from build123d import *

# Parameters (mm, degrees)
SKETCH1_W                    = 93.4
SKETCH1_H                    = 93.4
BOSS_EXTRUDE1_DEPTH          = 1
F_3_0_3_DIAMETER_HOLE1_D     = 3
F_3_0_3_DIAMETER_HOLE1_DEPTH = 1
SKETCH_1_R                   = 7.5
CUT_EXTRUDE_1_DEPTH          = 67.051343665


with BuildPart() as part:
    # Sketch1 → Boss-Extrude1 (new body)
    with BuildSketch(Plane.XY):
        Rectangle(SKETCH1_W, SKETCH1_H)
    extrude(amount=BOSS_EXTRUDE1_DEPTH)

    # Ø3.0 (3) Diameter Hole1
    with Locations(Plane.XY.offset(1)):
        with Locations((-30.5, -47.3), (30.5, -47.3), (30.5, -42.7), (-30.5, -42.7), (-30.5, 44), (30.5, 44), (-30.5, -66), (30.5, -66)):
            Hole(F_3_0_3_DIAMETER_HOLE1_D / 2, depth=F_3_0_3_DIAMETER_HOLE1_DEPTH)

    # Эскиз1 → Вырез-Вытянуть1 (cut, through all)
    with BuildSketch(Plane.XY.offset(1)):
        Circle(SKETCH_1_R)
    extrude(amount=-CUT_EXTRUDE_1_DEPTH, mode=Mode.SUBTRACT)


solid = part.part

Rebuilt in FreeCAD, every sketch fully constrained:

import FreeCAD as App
import Part
import Sketcher

doc = App.newDocument("Part")
params = doc.addObject("Spreadsheet::Sheet", "Params")
for row, (alias, value) in enumerate([
    ("sketch1_width", "93.4 mm"),
    ("pad1_length", "1 mm"),
    ("sketch2_diameter", "3 mm"),
    ("hole_diameter", "3 mm"),
    ("hole_depth", "1 mm"),
    ("sketch3_diameter", "15 mm"),
], start=1):
    params.set(f"A{row}", alias)
    params.set(f"B{row}", "=" + value)
    params.setAlias(f"B{row}", alias)

body = doc.addObject("PartDesign::Body", "Body")

sketch1 = body.newObject("Sketcher::SketchObject", "Sketch")
sketch1.AttachmentSupport = (doc.getObject("XY_Plane"), [""])
sketch1.MapMode = "FlatFace"
sketch1.addGeometry([
    Part.LineSegment(App.Vector(-47, 47, 0), App.Vector(-47, -47, 0)),
    Part.LineSegment(App.Vector(-47, -47, 0), App.Vector(47, -47, 0)),
    Part.LineSegment(App.Vector(47, -47, 0), App.Vector(47, 47, 0)),
    Part.LineSegment(App.Vector(47, 47, 0), App.Vector(-47, 47, 0)),
], False)
sketch1.addConstraint([
    Sketcher.Constraint("Coincident", 0, 2, 1, 1),
    Sketcher.Constraint("Coincident", 1, 2, 2, 1),
    Sketcher.Constraint("Coincident", 2, 2, 3, 1),
    Sketcher.Constraint("Coincident", 3, 2, 0, 1),
    Sketcher.Constraint("Vertical", 0),
    Sketcher.Constraint("Horizontal", 1),
    Sketcher.Constraint("Vertical", 2),
    Sketcher.Constraint("Horizontal", 3),
    Sketcher.Constraint("Symmetric", 0, 2, 2, 2, -1, 1),
    Sketcher.Constraint("Equal", 3, 0),
    Sketcher.Constraint("DistanceX", 1, 1, 1, 2, 93.4),
])
sketch1.setExpression("Constraints[10]", "Params.sketch1_width")
pad1 = body.newObject("PartDesign::Pad", "Pad")
pad1.Profile = sketch1
pad1.setExpression("Length", "Params.pad1_length")

sketch2 = body.newObject("Sketcher::SketchObject", "Sketch001")
sketch2.AttachmentSupport = (doc.getObject("XY_Plane"), [""])
sketch2.MapMode = "FlatFace"
sketch2.AttachmentOffset = App.Placement(App.Vector(0, 0, 1), App.Rotation())
sketch2.addGeometry([
    Part.Circle(App.Vector(-30.5, -47.3, 0), App.Vector(0, 0, 1), 1.5),
    Part.Circle(App.Vector(30.5, -47.3, 0), App.Vector(0, 0, 1), 1.5),
    Part.Circle(App.Vector(30.5, -42.7, 0), App.Vector(0, 0, 1), 1.5),
    Part.Circle(App.Vector(-30.5, -42.7, 0), App.Vector(0, 0, 1), 1.5),
    Part.Circle(App.Vector(-30.5, 44, 0), App.Vector(0, 0, 1), 1.5),
    Part.Circle(App.Vector(30.5, 44, 0), App.Vector(0, 0, 1), 1.5),
    Part.Circle(App.Vector(-30.5, -66, 0), App.Vector(0, 0, 1), 1.5),
    Part.Circle(App.Vector(30.5, -66, 0), App.Vector(0, 0, 1), 1.5),
], False)
sketch2.addConstraint([
    Sketcher.Constraint("Equal", 0, 1),
    Sketcher.Constraint("Equal", 1, 2),
    Sketcher.Constraint("Equal", 2, 3),
    Sketcher.Constraint("Equal", 3, 4),
    Sketcher.Constraint("Equal", 4, 5),
    Sketcher.Constraint("Equal", 5, 6),
    Sketcher.Constraint("Equal", 6, 7),
    Sketcher.Constraint("Symmetric", 0, 3, 1, 3, -2),
    Sketcher.Constraint("Symmetric", 2, 3, 3, 3, -2),
    Sketcher.Constraint("Symmetric", 4, 3, 5, 3, -2),
    Sketcher.Constraint("Symmetric", 6, 3, 7, 3, -2),
    Sketcher.Constraint("Vertical", 1, 3, 2, 3),
    Sketcher.Constraint("Vertical", 3, 3, 4, 3),
    Sketcher.Constraint("Vertical", 4, 3, 6, 3),
    Sketcher.Constraint("Diameter", 0, 3.0),
    Sketcher.Constraint("DistanceY", -1, 1, 4, 3, 44.0),
    Sketcher.Constraint("DistanceY", 6, 3, -1, 1, 66.0),
    Sketcher.Constraint("DistanceX", 0, 3, 1, 3, 61.0),
    Sketcher.Constraint("DistanceY", 0, 3, -1, 1, 47.3),
    Sketcher.Constraint("DistanceY", 2, 3, -1, 1, 42.7),
])
sketch2.setExpression("Constraints[14]", "Params.sketch2_diameter")
doc.recompute()
hole = body.newObject("PartDesign::Hole", "Hole")
hole.Profile = sketch2
hole.ThreadType = "None"
hole.setExpression("Diameter", "Params.hole_diameter")
hole.DepthType = "Dimension"
hole.setExpression("Depth", "Params.hole_depth")
hole.DrillPoint = "Flat"

sketch3 = body.newObject("Sketcher::SketchObject", "Sketch002")
sketch3.AttachmentSupport = (doc.getObject("XY_Plane"), [""])
sketch3.MapMode = "FlatFace"
sketch3.AttachmentOffset = App.Placement(App.Vector(0, 0, 1), App.Rotation())
sketch3.addGeometry(Part.Circle(App.Vector(0, 0, 0), App.Vector(0, 0, 1), 8), False)
sketch3.addConstraint([
    Sketcher.Constraint("Coincident", 0, 3, -1, 1),
    Sketcher.Constraint("Diameter", 0, 15.0),
])
sketch3.setExpression("Constraints[1]", "Params.sketch3_diameter")
pocket1 = body.newObject("PartDesign::Pocket", "Pocket")
pocket1.Profile = sketch3
pocket1.Type = "ThroughAll"

doc.recompute()
